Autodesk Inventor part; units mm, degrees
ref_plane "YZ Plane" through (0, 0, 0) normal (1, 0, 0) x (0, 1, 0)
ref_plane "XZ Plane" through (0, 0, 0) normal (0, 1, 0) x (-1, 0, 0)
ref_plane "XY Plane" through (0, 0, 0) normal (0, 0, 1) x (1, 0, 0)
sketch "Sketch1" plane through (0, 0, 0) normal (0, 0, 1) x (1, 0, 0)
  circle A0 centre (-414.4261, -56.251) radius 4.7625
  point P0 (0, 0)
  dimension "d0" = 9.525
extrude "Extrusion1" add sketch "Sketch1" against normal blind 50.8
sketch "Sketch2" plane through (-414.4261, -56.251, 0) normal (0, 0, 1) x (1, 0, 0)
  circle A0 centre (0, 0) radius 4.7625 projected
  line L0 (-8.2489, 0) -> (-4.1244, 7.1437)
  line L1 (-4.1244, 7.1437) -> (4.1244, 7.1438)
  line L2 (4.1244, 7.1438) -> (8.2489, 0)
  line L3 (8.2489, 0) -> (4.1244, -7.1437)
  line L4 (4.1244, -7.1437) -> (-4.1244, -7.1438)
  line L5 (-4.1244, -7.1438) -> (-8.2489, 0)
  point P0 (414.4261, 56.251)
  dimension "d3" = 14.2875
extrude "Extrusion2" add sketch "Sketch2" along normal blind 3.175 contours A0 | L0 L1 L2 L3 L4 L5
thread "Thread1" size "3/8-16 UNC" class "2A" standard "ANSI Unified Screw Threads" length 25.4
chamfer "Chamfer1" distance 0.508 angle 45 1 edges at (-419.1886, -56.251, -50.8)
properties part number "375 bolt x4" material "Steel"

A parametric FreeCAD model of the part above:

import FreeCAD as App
import Part
import Sketcher

V = App.Vector
Q = App.Units.Quantity


def edges_at(feature, points):
    """Names of the edges that pass closest to the given points."""
    edges = feature.Shape.Edges
    near = lambda p: min(range(len(edges)), key=lambda i: edges[i].distToShape(Part.Vertex(*p))[0])
    return sorted({f"Edge{near(p) + 1}" for p in points})

doc = App.newDocument("Part")
params = doc.addObject("Spreadsheet::Sheet", "Params")
for row, (alias, value) in enumerate([
    ("sketch1_diameter", "0.375 in"),
    ("pad1_length", "2 in"),
    ("pad2_length", "0.125 in"),
    ("chamfer_size", "0.02 in"),
], start=1):
    params.set(f"A{row}", alias)
    params.set(f"B{row}", "=" + value)
    params.setAlias(f"B{row}", alias)

body = doc.addObject("PartDesign::Body", "Body")

# Sketch on XY plane
sketch1 = body.newObject("Sketcher::SketchObject", "Sketch")
sketch1.AttachmentSupport = (doc.getObject("XY_Plane"), [""])
sketch1.MapMode = "FlatFace"
sketch1.addGeometry(Part.Circle(V(-414.4, -56.3, 0), V(0, 0, 1), 4.8), False)
sketch1.addConstraint([
    Sketcher.Constraint("Diameter", 0, Q("0.375 in")),
    Sketcher.Constraint("DistanceX", 0, 3, -1, 1, Q("16.316 in")),
    Sketcher.Constraint("DistanceY", 0, 3, -1, 1, Q("2.2146 in")),
])
sketch1.setExpression("Constraints[0]", "Params.sketch1_diameter")
pad1 = body.newObject("PartDesign::Pad", "Pad")
pad1.Profile = sketch1
pad1.setExpression("Length", "Params.pad1_length")
pad1.Reversed = True

# Sketch on XY plane
sketch2 = body.newObject("Sketcher::SketchObject", "Sketch001")
sketch2.AttachmentSupport = (doc.getObject("XY_Plane"), [""])
sketch2.MapMode = "FlatFace"
sketch2.addGeometry([
    Part.LineSegment(V(-419, -49, 0), V(-423, -56, 0)),  # 0
    Part.LineSegment(V(-423, -56, 0), V(-419, -63, 0)),  # 1
    Part.LineSegment(V(-419, -63, 0), V(-410, -63, 0)),  # 2
    Part.LineSegment(V(-410, -63, 0), V(-406, -56, 0)),  # 3
    Part.LineSegment(V(-406, -56, 0), V(-410, -49, 0)),  # 4
    Part.LineSegment(V(-410, -49, 0), V(-419, -49, 0)),  # 5
], False)
sketch2.addConstraint([
    Sketcher.Constraint("Coincident", 0, 2, 1, 1),
    Sketcher.Constraint("Coincident", 1, 2, 2, 1),
    Sketcher.Constraint("Coincident", 2, 2, 3, 1),
    Sketcher.Constraint("Coincident", 3, 2, 4, 1),
    Sketcher.Constraint("Coincident", 4, 2, 5, 1),
    Sketcher.Constraint("Coincident", 5, 2, 0, 1),
    Sketcher.Constraint("Horizontal", 2),
    Sketcher.Constraint("Horizontal", 5),
    Sketcher.Constraint("Parallel", 0, 3),
    Sketcher.Constraint("Parallel", 1, 4),
    Sketcher.Constraint("Horizontal", 0, 2, 3, 2),
    Sketcher.Constraint("Vertical", 2, 2, 4, 2),
    Sketcher.Constraint("Vertical", 1, 2, 5, 2),
    Sketcher.Constraint("Angle", 0, Q("-120.0005 deg")),
    Sketcher.Constraint("DistanceY", 2, 2, 4, 2, Q("0.5625 in")),
    Sketcher.Constraint("DistanceX", 2, 1, 2, 2, 8.2488),
    Sketcher.Constraint("DistanceY", 0, 2, -1, 1, Q("2.2146 in")),
    Sketcher.Constraint("DistanceX", 2, 2, -1, 1, Q("16.1536 in")),
])
pad2 = body.newObject("PartDesign::Pad", "Pad001")
pad2.Profile = sketch2
pad2.setExpression("Length", "Params.pad2_length")
doc.recompute()

chamfer = body.newObject("PartDesign::Chamfer", "Chamfer")
chamfer.Base = (pad2, edges_at(pad2, [(-419.189, -56.251, -50.8)]))
chamfer.setExpression("Size", "Params.chamfer_size")

doc.recompute()
